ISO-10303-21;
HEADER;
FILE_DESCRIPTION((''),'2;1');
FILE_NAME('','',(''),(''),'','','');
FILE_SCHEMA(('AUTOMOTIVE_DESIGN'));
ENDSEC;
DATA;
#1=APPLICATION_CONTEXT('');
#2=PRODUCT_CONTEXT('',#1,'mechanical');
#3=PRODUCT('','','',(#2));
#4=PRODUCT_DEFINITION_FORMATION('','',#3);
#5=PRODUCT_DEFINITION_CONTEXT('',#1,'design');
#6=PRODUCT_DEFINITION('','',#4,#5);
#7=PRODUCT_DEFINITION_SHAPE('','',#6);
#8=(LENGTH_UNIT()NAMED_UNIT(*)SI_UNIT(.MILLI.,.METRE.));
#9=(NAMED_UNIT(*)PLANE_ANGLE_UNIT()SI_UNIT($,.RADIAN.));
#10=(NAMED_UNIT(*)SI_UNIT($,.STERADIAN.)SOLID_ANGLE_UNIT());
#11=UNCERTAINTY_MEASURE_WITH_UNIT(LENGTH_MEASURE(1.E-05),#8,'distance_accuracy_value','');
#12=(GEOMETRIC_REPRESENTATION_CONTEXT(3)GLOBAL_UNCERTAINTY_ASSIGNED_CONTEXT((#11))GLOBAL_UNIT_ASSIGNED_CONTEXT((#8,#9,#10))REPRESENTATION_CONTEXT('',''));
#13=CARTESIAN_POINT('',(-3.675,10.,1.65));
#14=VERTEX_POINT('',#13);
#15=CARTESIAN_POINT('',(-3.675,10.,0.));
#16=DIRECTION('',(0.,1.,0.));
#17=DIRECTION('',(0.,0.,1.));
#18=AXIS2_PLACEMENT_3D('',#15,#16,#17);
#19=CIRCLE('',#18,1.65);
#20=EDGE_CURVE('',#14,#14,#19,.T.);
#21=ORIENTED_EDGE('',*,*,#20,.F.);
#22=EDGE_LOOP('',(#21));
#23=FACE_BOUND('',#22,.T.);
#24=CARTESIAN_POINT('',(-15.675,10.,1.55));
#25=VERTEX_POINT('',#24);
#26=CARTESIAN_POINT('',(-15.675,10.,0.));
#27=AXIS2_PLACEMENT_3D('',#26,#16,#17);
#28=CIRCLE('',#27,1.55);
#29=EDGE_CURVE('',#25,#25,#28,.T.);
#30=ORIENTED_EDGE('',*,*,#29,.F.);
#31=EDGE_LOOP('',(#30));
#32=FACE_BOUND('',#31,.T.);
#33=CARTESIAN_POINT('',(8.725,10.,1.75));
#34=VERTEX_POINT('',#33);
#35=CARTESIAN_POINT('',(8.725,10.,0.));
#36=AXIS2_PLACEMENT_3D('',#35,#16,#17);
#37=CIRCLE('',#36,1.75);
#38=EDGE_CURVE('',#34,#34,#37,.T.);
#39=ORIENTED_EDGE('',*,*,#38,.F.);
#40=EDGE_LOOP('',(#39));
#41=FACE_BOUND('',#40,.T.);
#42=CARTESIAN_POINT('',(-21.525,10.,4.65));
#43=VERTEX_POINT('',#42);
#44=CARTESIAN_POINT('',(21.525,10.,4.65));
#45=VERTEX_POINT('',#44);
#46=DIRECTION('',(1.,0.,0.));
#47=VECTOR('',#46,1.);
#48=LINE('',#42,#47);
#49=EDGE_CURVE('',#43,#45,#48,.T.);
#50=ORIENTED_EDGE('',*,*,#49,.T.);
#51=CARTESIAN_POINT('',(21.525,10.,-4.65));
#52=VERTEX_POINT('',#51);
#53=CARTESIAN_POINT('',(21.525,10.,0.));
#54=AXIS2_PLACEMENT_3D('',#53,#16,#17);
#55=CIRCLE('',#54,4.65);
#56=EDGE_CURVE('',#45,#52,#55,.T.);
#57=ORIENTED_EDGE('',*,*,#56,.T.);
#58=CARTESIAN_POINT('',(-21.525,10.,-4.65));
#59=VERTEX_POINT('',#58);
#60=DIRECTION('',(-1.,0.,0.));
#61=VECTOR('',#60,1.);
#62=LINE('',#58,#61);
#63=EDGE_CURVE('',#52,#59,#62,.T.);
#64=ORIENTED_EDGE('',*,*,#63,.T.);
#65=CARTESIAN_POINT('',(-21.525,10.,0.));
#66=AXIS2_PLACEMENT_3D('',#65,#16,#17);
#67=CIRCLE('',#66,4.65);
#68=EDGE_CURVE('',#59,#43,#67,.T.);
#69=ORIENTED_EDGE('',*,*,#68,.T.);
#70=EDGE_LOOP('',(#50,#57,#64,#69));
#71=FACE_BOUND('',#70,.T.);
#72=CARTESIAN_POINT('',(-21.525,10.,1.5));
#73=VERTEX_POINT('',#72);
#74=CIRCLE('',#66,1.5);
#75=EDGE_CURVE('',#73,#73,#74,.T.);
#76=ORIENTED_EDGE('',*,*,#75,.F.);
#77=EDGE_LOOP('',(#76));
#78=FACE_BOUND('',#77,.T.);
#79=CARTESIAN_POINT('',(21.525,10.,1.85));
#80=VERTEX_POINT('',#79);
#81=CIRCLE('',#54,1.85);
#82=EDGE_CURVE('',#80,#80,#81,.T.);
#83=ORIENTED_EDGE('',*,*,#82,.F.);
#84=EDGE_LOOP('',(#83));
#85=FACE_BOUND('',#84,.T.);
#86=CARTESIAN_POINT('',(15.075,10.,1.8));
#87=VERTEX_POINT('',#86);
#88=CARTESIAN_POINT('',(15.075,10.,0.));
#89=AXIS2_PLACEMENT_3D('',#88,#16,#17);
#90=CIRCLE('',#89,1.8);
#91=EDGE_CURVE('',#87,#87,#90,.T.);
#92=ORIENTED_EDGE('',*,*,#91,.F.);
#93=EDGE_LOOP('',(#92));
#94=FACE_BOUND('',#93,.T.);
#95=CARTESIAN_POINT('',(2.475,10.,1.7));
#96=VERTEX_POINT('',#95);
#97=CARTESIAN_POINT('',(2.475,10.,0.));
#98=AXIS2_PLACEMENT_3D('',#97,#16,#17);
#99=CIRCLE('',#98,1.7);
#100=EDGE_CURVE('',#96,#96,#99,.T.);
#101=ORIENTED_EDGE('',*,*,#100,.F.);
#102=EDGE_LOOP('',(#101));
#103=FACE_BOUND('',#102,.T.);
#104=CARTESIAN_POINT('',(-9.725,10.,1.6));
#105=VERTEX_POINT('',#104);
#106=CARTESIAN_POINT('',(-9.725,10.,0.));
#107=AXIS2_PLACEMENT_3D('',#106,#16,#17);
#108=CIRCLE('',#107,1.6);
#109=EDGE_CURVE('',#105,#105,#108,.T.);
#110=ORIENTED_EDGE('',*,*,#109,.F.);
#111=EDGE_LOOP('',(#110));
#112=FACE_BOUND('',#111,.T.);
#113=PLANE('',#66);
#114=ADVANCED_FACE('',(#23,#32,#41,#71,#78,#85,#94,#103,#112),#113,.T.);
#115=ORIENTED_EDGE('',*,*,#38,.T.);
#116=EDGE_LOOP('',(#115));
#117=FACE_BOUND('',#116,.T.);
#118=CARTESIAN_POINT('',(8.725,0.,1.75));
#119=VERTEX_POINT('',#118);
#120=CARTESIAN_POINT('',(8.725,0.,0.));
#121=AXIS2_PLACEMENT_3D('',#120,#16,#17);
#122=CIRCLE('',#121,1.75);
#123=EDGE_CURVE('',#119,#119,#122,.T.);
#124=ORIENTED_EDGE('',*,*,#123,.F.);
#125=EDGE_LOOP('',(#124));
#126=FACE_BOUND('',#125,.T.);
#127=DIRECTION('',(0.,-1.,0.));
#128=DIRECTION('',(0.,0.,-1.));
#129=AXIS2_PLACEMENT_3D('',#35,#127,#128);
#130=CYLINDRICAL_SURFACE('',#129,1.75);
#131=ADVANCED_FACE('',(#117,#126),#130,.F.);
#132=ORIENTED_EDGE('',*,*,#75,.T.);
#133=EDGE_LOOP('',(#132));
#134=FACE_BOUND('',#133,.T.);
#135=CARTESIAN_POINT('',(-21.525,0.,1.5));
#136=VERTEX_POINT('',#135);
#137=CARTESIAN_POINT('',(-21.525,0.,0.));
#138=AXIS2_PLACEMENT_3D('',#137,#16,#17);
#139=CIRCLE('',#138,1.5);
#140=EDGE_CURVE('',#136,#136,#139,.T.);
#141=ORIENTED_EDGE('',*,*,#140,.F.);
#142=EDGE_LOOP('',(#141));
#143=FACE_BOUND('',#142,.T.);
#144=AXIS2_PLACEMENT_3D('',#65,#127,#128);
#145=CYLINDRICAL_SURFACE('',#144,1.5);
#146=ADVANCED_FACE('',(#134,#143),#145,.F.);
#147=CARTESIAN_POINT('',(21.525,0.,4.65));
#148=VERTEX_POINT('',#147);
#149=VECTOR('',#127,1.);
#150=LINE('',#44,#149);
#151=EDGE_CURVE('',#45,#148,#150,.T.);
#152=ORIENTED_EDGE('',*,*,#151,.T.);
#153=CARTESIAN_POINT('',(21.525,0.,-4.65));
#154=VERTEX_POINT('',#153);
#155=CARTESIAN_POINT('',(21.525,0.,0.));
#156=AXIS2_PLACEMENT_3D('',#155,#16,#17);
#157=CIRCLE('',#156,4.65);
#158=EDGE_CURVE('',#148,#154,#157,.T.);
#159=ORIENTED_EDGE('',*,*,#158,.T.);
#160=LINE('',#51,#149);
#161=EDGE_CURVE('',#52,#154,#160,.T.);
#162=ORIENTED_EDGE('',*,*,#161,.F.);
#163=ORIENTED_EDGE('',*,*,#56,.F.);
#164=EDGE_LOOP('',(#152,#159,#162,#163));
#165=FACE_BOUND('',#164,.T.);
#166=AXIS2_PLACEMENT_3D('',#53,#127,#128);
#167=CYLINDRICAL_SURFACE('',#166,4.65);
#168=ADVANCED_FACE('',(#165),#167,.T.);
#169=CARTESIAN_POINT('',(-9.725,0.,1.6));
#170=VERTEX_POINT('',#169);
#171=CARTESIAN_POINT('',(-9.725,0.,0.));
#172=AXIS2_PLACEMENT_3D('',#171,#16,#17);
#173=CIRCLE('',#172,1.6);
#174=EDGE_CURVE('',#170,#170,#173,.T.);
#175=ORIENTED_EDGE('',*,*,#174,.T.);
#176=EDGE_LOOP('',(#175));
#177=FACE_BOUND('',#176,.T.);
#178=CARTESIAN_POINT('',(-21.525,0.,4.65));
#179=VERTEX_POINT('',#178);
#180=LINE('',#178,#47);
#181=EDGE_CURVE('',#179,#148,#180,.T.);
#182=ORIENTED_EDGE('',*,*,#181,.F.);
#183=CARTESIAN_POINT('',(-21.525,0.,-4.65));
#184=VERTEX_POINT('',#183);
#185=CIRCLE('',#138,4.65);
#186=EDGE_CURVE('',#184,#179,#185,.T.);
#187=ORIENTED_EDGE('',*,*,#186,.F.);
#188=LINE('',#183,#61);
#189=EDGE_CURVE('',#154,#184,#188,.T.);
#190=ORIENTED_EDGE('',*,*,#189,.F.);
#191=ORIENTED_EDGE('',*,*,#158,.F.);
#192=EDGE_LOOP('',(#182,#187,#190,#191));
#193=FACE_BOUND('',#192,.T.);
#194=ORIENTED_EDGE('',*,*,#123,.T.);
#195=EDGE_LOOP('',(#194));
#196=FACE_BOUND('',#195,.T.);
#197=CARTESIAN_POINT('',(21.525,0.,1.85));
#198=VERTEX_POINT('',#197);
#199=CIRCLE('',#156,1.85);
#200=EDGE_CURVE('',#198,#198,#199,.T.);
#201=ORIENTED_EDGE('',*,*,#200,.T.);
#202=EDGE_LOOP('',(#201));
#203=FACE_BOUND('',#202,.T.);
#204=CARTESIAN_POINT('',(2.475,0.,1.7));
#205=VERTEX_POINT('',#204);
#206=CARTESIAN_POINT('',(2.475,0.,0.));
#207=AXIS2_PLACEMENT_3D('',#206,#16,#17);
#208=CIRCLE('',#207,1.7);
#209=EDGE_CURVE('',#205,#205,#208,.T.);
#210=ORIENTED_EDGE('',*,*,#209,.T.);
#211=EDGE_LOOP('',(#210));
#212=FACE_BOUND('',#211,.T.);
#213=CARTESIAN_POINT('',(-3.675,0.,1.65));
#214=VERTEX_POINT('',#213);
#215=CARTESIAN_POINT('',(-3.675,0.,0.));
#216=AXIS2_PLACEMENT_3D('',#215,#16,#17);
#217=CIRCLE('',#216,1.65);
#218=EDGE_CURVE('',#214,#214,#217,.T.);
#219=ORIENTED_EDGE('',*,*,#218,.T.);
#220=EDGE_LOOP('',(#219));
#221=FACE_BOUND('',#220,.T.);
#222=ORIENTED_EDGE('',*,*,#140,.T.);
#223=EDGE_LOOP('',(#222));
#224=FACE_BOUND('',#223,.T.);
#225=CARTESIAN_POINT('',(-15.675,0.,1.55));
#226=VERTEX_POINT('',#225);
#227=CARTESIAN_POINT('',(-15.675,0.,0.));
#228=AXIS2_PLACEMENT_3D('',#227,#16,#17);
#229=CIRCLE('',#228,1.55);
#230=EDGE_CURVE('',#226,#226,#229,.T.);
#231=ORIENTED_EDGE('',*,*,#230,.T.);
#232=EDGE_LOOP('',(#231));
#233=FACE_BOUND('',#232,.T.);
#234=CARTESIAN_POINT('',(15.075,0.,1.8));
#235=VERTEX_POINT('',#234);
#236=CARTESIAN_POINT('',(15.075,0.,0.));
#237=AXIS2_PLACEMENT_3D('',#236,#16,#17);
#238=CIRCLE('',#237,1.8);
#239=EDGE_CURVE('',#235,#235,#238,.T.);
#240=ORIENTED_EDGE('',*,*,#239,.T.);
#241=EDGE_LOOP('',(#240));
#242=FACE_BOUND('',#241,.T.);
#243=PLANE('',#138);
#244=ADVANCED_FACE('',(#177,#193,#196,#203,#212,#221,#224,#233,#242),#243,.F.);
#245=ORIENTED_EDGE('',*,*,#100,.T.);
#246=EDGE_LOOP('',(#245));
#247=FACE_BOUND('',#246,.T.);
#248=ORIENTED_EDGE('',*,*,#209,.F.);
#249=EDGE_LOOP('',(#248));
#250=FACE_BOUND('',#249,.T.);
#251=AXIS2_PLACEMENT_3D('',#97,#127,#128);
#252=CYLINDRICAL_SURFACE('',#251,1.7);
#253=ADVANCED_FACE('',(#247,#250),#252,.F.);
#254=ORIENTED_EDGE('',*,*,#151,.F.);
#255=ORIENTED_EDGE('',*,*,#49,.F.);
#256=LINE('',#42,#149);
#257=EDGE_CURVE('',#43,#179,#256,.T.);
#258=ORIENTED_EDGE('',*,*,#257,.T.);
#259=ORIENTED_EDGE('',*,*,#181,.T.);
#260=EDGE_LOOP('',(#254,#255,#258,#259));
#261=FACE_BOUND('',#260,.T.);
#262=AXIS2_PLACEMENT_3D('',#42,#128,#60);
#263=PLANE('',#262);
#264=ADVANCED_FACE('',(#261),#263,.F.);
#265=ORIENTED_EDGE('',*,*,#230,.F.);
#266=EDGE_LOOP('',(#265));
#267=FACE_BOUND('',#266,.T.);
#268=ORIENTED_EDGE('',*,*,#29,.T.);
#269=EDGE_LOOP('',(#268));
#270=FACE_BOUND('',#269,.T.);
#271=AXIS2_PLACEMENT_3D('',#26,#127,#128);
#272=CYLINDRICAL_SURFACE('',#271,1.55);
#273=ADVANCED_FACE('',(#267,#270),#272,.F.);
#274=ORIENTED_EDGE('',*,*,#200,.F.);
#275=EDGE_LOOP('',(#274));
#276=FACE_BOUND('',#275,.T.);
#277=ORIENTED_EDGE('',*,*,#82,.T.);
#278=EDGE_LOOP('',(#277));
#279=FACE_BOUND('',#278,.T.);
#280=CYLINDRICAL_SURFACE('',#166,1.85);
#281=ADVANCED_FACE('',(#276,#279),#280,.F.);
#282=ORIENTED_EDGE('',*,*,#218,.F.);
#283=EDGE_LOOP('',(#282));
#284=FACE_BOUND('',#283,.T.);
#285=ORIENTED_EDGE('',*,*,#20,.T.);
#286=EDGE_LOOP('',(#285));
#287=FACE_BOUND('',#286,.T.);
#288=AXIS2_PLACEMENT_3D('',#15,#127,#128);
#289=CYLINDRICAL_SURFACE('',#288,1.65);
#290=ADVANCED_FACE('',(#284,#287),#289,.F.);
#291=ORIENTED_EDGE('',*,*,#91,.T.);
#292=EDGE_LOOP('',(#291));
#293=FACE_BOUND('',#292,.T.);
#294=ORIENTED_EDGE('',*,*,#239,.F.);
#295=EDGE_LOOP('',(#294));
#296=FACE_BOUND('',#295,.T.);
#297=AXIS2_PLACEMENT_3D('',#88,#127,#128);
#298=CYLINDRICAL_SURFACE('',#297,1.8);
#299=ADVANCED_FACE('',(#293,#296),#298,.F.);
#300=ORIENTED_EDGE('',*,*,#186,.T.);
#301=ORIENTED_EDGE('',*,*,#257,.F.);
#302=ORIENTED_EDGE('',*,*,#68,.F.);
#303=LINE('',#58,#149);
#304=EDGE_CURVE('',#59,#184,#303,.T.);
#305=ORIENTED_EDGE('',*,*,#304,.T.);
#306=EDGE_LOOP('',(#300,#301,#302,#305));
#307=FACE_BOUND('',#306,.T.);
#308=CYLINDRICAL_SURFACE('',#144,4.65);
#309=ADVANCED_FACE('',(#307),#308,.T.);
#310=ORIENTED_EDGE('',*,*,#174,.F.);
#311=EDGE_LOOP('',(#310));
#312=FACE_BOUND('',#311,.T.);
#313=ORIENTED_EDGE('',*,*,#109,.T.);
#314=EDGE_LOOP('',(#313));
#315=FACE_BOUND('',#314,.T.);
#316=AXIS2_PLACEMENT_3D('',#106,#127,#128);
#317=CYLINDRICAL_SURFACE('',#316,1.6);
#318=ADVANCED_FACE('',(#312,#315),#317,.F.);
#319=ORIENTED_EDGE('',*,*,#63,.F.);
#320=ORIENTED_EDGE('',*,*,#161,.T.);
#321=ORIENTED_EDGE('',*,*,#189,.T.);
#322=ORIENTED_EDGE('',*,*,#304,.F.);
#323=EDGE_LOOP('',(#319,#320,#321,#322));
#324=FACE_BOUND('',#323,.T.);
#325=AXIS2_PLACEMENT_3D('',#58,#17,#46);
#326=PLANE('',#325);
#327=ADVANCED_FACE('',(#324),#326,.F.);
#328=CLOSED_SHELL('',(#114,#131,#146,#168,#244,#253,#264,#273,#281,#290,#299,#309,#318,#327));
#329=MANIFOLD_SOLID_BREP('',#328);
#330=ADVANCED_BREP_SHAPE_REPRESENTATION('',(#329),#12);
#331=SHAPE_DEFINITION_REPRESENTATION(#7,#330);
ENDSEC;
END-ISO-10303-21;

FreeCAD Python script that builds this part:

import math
import FreeCAD as App
import Part
import Sketcher
from FreeCAD import Vector

doc = App.newDocument("Part")
body = doc.addObject("PartDesign::Body", "Body")

sketch1 = body.newObject("Sketcher::SketchObject", "Sketch")
sketch1.AttachmentSupport = (doc.getObject("XZ_Plane"), [""])
sketch1.MapMode = "FlatFace"
sketch1.addGeometry([
    Part.LineSegment(Vector(21.5, -4.7, 0), Vector(-21.5, -4.7, 0)),
    Part.ArcOfCircle(Part.Circle(Vector(-21.5, 0, 0), Vector(0, 0, 1), 4.7), math.radians(90), math.radians(270)),
    Part.LineSegment(Vector(-21.5, 4.7, 0), Vector(21.5, 4.7, 0)),
    Part.ArcOfCircle(Part.Circle(Vector(21.5, 0, 0), Vector(0, 0, 1), 4.7), math.radians(-90), math.radians(90)),
    Part.Circle(Vector(21.5, 0, 0), Vector(0, 0, 1), 1.9),
    Part.Circle(Vector(15.1, 0, 0), Vector(0, 0, 1), 1.8),
    Part.Circle(Vector(8.7, 0, 0), Vector(0, 0, 1), 1.8),
    Part.Circle(Vector(2.5, 0, 0), Vector(0, 0, 1), 1.7),
    Part.Circle(Vector(-3.7, 0, 0), Vector(0, 0, 1), 1.6),
    Part.Circle(Vector(-9.7, 0, 0), Vector(0, 0, 1), 1.6),
    Part.Circle(Vector(-15.7, 0, 0), Vector(0, 0, 1), 1.6),
    Part.Circle(Vector(-21.5, 0, 0), Vector(0, 0, 1), 1.5),
], False)
sketch1.addConstraint([
    Sketcher.Constraint("Tangent", 0, 2, 1, 2),
    Sketcher.Constraint("Tangent", 1, 1, 2, 1),
    Sketcher.Constraint("Tangent", 2, 2, 3, 2),
    Sketcher.Constraint("Tangent", 3, 1, 0, 1),
    Sketcher.Constraint("Horizontal", 0),
    Sketcher.Constraint("Horizontal", 2),
    Sketcher.Constraint("Coincident", 4, 3, 3, 3),
    Sketcher.Constraint("Coincident", 11, 3, 1, 3),
    Sketcher.Constraint("Symmetric", 1, 3, 3, 3, -1, 1),
    Sketcher.Constraint("PointOnObject", 5, 3, -1),
    Sketcher.Constraint("PointOnObject", 6, 3, -1),
    Sketcher.Constraint("PointOnObject", 7, 3, -1),
    Sketcher.Constraint("PointOnObject", 8, 3, -1),
    Sketcher.Constraint("PointOnObject", 9, 3, -1),
    Sketcher.Constraint("PointOnObject", 10, 3, -1),
    Sketcher.Constraint("Diameter", 11, 3.0),
    Sketcher.Constraint("Diameter", 4, 3.7),
    Sketcher.Constraint("Diameter", 5, 3.6),
    Sketcher.Constraint("Diameter", 6, 3.5),
    Sketcher.Constraint("Diameter", 7, 3.4),
    Sketcher.Constraint("Diameter", 8, 3.3),
    Sketcher.Constraint("Diameter", 9, 3.2),
    Sketcher.Constraint("Diameter", 10, 3.1),
    Sketcher.Constraint("Radius", 1, 4.65),
    Sketcher.Constraint("DistanceX", 1, 3, 7, 3, 24.0),
    Sketcher.Constraint("DistanceX", 10, 3, 8, 3, 12.0),
    Sketcher.Constraint("DistanceX", 0, 2, 0, 1, 43.05),
    Sketcher.Constraint("DistanceX", 1, 3, 5, 3, 36.6),
    Sketcher.Constraint("DistanceX", 6, 3, 3, 3, 12.8),
    Sketcher.Constraint("DistanceX", 8, 3, 6, 3, 12.4),
    Sketcher.Constraint("DistanceX", 1, 3, 9, 3, 11.8),
])
pad1 = body.newObject("PartDesign::Pad", "Pad")
pad1.Profile = sketch1
pad1.Length = 10
pad1.Reversed = True

doc.recompute()
